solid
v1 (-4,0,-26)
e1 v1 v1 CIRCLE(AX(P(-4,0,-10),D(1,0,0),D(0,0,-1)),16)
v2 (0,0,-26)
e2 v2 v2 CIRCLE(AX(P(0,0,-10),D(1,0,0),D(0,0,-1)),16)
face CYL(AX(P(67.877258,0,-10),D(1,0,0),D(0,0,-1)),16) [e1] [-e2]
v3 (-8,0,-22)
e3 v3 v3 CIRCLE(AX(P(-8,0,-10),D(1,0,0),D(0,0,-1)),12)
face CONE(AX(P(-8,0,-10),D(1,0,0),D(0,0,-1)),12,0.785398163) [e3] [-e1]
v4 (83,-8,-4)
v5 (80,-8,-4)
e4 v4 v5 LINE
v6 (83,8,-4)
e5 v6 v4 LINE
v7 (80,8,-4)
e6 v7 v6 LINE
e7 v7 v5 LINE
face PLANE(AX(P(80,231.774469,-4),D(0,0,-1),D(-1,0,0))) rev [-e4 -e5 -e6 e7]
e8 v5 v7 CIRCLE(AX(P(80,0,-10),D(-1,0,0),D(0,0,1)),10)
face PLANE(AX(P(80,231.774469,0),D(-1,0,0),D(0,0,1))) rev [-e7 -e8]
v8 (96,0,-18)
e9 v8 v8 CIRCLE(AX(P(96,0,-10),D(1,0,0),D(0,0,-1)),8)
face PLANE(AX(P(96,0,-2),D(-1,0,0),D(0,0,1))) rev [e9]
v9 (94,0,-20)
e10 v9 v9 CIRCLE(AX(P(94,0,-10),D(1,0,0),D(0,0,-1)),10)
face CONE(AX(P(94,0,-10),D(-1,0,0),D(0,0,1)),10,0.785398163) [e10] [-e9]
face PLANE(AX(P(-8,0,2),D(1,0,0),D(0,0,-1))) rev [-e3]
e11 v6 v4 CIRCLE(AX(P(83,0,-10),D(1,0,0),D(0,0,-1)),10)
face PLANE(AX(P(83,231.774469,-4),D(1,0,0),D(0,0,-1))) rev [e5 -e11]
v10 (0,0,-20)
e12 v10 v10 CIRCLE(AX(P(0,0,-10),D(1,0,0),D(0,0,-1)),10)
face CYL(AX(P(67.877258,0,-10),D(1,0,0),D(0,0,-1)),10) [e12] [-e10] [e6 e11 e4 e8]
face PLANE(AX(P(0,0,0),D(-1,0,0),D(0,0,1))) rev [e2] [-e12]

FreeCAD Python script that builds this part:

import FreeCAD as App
import Part
import Sketcher
Q = App.Units.Quantity


def add_polygon(sketch, points):
    """Adds a closed chain of lines whose ends are joined by coincident constraints."""
    first, n = sketch.GeometryCount, len(points)
    for a, b in zip(points, points[1:] + points[:1]):
        sketch.addGeometry(Part.LineSegment(App.Vector(*a, 0), App.Vector(*b, 0)), False)
    for i in range(n):
        sketch.addConstraint(Sketcher.Constraint("Coincident", first + i, 2, first + (i + 1) % n, 1))

doc = App.newDocument("Part")
body = doc.addObject("PartDesign::Body", "Body")

sketch1 = body.newObject("Sketcher::SketchObject", "Sketch")
sketch1.AttachmentSupport = (doc.getObject("XZ_Plane"), [""])
sketch1.MapMode = "FlatFace"
add_polygon(sketch1, [(0, 0), (94, 0), (96, -2), (96, -10), (-8, -10), (-8, 2), (-4, 6), (0, 6)])
sketch1.addGeometry(Part.LineSegment(App.Vector(96, -10, 0), App.Vector(-8, -10, 0)), True)
sketch1.addConstraint([
    Sketcher.Constraint("Horizontal", 0),
    Sketcher.Constraint("Vertical", 2),
    Sketcher.Constraint("Horizontal", 3),
    Sketcher.Constraint("Vertical", 4),
    Sketcher.Constraint("Horizontal", 6),
    Sketcher.Constraint("Vertical", 7),
    Sketcher.Constraint("Horizontal", 8),
    Sketcher.Constraint("Coincident", 7, 2, -1, 1),
    Sketcher.Constraint("Coincident", 8, 1, 2, 2),
    Sketcher.Constraint("Perpendicular", 1, 5),
    Sketcher.Constraint("Vertical", 4, 2, 8, 2),
    Sketcher.Constraint("DistanceX", 0, 1, 0, 2, Q("94 mm")),
    Sketcher.Constraint("DistanceX", 3, 2, 3, 1, Q("104 mm")),
    Sketcher.Constraint("DistanceX", 6, 1, 6, 2, Q("4 mm")),
    Sketcher.Constraint("DistanceY", 2, 2, 2, 1, Q("8 mm")),
    Sketcher.Constraint("DistanceY", 4, 1, 4, 2, Q("12 mm")),
    Sketcher.Constraint("DistanceY", 7, 2, 7, 1, Q("6 mm")),
    Sketcher.Constraint("Angle", 1, Q("-45 deg")),
])
revolution = body.newObject("PartDesign::Revolution", "Revolution")
revolution.Profile = sketch1
revolution.ReferenceAxis = (sketch1, ["Axis0"])
revolution.Angle = 360

sketch2 = body.newObject("Sketcher::SketchObject", "Sketch001")
sketch2.AttachmentSupport = (doc.getObject("XZ_Plane"), [""])
sketch2.MapMode = "FlatFace"
sketch2.AttachmentOffset = App.Placement(App.Vector(0, 0, -40), App.Rotation())
add_polygon(sketch2, [(80, -4), (80, 597.848571), (83, 597.848571), (83, -4)])
sketch2.addConstraint([
    Sketcher.Constraint("Vertical", 0),
    Sketcher.Constraint("Horizontal", 1),
    Sketcher.Constraint("Vertical", 2),
    Sketcher.Constraint("Horizontal", 3),
    Sketcher.Constraint("DistanceX", 1, 1, 1, 2, Q("3 mm")),
    Sketcher.Constraint("DistanceX", -1, 1, 0, 2, Q("80 mm")),
    Sketcher.Constraint("DistanceY", 2, 2, -1, 1, Q("4 mm")),
    Sketcher.Constraint("DistanceY", 0, 1, 0, 2, Q("601.848571 mm")),
])
pocket1 = body.newObject("PartDesign::Pocket", "Pocket")
pocket1.Profile = sketch2
pocket1.Type = "ThroughAll"
pocket1.Midplane = True

doc.recompute()
